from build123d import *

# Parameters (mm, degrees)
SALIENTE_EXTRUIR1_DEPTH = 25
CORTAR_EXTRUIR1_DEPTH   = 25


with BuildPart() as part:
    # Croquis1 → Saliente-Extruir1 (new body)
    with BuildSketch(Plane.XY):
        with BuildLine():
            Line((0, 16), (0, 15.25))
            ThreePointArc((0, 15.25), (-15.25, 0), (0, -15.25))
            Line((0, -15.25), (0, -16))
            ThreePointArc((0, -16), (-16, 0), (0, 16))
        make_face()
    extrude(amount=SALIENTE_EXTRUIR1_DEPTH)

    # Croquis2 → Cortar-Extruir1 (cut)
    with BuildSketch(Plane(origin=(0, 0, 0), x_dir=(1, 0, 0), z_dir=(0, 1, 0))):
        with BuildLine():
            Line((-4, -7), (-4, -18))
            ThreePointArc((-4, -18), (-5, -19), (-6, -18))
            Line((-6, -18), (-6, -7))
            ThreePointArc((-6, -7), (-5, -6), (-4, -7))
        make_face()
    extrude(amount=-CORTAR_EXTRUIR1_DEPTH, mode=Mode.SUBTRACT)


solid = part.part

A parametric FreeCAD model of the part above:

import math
import FreeCAD as App
import Part
import Sketcher
from FreeCAD import Vector
Q = App.Units.Quantity

doc = App.newDocument("Part")
body = doc.addObject("PartDesign::Body", "Body")

# Sketch on XY plane
sketch1 = body.newObject("Sketcher::SketchObject", "Sketch")
sketch1.AttachmentSupport = (doc.getObject("XY_Plane"), [""])
sketch1.MapMode = "FlatFace"
sketch1.addGeometry([
    Part.LineSegment(Vector(0, 15.25, 0), Vector(0, 16, 0)),
    Part.ArcOfCircle(Part.Circle(Vector(0, 0, 0), Vector(0, 0, 1), 16), math.radians(90), math.radians(270)),
    Part.LineSegment(Vector(0, -16, 0), Vector(0, -15.25, 0)),
    Part.ArcOfCircle(Part.Circle(Vector(0, 0, 0), Vector(0, 0, 1), 15.25), math.radians(90), math.radians(270)),
], False)
sketch1.addConstraint([
    Sketcher.Constraint("Coincident", 0, 2, 1, 1),
    Sketcher.Constraint("Coincident", 1, 2, 2, 1),
    Sketcher.Constraint("Coincident", 2, 2, 3, 2),
    Sketcher.Constraint("Coincident", 3, 1, 0, 1),
    Sketcher.Constraint("Vertical", 0),
    Sketcher.Constraint("Vertical", 2),
    Sketcher.Constraint("Coincident", 1, 3, -1, 1),
    Sketcher.Constraint("Coincident", 3, 3, -1, 1),
    Sketcher.Constraint("PointOnObject", 0, 2, -2),
    Sketcher.Constraint("PointOnObject", 1, 2, -2),
    Sketcher.Constraint("Radius", 1, Q("16 mm")),
    Sketcher.Constraint("Radius", 3, Q("15.25 mm")),
])
pad1 = body.newObject("PartDesign::Pad", "Pad")
pad1.Profile = sketch1
pad1.Length = 25

# Sketch on XZ plane
sketch2 = body.newObject("Sketcher::SketchObject", "Sketch001")
sketch2.AttachmentSupport = (doc.getObject("XZ_Plane"), [""])
sketch2.MapMode = "FlatFace"
sketch2.addGeometry([
    Part.LineSegment(Vector(-4, 18, 0), Vector(-4, 7, 0)),
    Part.ArcOfCircle(Part.Circle(Vector(-5, 7, 0), Vector(0, 0, 1), 1), math.radians(180), math.radians(360)),
    Part.LineSegment(Vector(-6, 7, 0), Vector(-6, 18, 0)),
    Part.ArcOfCircle(Part.Circle(Vector(-5, 18, 0), Vector(0, 0, 1), 1), math.radians(0), math.radians(180)),
], False)
sketch2.addConstraint([
    Sketcher.Constraint("Tangent", 0, 2, 1, 2),
    Sketcher.Constraint("Tangent", 1, 1, 2, 1),
    Sketcher.Constraint("Tangent", 2, 2, 3, 2),
    Sketcher.Constraint("Tangent", 3, 1, 0, 1),
    Sketcher.Constraint("Vertical", 0),
    Sketcher.Constraint("Vertical", 2),
    Sketcher.Constraint("Radius", 1, Q("1 mm")),
    Sketcher.Constraint("DistanceY", 0, 2, 0, 1, Q("11 mm")),
    Sketcher.Constraint("DistanceX", 1, 3, -1, 1, Q("5 mm")),
    Sketcher.Constraint("DistanceY", -1, 1, 1, 3, Q("7 mm")),
])
pocket1 = body.newObject("PartDesign::Pocket", "Pocket")
pocket1.Profile = sketch2
pocket1.Length = 25
pocket1.Reversed = True

doc.recompute()
